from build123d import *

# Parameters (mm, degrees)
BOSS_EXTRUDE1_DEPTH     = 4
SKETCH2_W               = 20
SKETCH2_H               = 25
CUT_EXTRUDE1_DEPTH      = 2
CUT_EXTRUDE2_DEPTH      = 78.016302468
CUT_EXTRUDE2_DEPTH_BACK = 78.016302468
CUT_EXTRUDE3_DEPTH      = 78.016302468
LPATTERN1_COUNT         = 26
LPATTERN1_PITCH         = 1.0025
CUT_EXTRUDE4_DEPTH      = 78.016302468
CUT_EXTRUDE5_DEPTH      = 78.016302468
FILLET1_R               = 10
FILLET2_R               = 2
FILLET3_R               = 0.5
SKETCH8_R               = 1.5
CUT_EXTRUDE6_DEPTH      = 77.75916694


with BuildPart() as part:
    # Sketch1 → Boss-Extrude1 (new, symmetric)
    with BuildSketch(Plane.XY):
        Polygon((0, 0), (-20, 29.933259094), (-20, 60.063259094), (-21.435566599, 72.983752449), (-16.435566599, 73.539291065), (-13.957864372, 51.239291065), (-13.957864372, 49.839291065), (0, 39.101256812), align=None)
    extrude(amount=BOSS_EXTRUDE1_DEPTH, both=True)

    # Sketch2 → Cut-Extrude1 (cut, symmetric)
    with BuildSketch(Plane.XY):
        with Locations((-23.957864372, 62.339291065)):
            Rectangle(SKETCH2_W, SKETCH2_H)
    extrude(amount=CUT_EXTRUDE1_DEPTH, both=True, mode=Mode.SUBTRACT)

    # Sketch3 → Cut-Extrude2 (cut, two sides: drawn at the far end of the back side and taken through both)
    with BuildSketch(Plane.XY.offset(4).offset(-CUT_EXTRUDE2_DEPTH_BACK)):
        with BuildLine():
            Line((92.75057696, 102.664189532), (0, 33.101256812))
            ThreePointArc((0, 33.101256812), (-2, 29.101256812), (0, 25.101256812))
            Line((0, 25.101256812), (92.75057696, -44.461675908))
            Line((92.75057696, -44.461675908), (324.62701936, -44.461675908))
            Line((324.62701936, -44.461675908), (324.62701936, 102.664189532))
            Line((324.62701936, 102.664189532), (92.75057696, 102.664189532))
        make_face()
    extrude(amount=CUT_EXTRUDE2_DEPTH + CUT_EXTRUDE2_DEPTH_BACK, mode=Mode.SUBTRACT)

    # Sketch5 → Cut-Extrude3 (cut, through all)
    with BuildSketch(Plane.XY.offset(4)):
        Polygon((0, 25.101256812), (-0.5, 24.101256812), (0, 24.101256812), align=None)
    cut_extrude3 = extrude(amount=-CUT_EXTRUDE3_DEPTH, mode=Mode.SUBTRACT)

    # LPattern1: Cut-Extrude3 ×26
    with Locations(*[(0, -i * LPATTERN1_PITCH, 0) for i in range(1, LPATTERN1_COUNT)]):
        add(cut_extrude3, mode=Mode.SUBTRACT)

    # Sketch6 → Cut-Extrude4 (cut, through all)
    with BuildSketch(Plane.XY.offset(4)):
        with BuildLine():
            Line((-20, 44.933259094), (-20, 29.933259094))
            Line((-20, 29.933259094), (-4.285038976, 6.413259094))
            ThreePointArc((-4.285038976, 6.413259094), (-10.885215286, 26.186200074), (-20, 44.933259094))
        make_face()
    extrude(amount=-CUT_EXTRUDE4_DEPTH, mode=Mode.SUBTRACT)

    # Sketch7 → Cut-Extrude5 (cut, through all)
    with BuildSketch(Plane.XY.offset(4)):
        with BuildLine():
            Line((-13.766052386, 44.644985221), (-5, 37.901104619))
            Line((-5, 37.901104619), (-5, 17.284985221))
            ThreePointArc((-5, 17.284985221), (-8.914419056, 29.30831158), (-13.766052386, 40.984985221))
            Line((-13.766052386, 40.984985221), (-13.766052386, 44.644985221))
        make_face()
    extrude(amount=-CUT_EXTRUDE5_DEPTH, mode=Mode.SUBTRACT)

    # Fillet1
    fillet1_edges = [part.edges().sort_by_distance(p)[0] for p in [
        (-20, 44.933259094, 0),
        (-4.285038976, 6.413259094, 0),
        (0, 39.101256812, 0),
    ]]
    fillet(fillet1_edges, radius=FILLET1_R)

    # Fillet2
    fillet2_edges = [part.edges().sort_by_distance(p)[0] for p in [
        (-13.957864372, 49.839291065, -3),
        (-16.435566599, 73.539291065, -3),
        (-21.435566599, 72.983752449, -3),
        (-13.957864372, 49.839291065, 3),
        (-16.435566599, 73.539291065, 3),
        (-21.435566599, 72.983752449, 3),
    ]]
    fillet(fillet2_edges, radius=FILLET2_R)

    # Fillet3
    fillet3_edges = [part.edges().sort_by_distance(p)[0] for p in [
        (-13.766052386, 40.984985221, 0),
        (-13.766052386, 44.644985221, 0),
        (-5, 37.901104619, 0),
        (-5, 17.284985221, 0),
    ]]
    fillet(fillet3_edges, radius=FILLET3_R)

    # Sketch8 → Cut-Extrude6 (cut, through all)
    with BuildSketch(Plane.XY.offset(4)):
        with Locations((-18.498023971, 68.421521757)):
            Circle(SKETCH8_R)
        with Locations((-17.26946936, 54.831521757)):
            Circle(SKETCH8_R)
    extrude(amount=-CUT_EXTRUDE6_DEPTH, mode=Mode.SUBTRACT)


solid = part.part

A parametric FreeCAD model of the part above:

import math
import FreeCAD as App
import Part
import Sketcher

V = App.Vector
Q = App.Units.Quantity


def edges_at(feature, points):
    """Names of the edges that pass closest to the given points."""
    edges = feature.Shape.Edges
    near = lambda p: min(range(len(edges)), key=lambda i: edges[i].distToShape(Part.Vertex(*p))[0])
    return sorted({f"Edge{near(p) + 1}" for p in points})


def add_polygon(sketch, points):
    """Adds a closed chain of lines whose ends are joined by coincident constraints."""
    first, n = sketch.GeometryCount, len(points)
    for a, b in zip(points, points[1:] + points[:1]):
        sketch.addGeometry(Part.LineSegment(App.Vector(*a, 0), App.Vector(*b, 0)), False)
    for i in range(n):
        sketch.addConstraint(Sketcher.Constraint("Coincident", first + i, 2, first + (i + 1) % n, 1))

doc = App.newDocument("Part")
params = doc.addObject("Spreadsheet::Sheet", "Params")
for row, (alias, value) in enumerate([
    ("sketch1_length", "36 mm"),
    ("sketch1_length2", "13 mm"),
    ("sketch1_height", "1.4 mm"),
    ("sketch1_height2", "30.13 mm"),
    ("pad1_length", "8 mm"),
    ("sketch2_width", "20 mm"),
    ("sketch2_height", "25 mm"),
    ("pocket1_length", "4 mm"),
    ("sketch3_radius", "5 mm"),
    ("sketch4_height", "1 mm"),
    ("sketch4_width", "0.5 mm"),
    ("linearpattern_pitch", "1.0025 mm"),
    ("sketch5_radius", "160 mm"),
    ("sketch5_height", "15 mm"),
    ("sketch6_radius", "160 mm"),
    ("sketch6_height", "3.66 mm"),
    ("sketch6_length", "11.06 mm"),
    ("fillet_radius", "10 mm"),
    ("fillet2_radius", "2 mm"),
    ("fillet3_radius", "0.5 mm"),
    ("sketch7_diameter", "3 mm"),
], start=1):
    params.set(f"A{row}", alias)
    params.set(f"B{row}", "=" + value)
    params.setAlias(f"B{row}", alias)

body = doc.addObject("PartDesign::Body", "Body")
body.AllowCompound = True

# Sketch on XY plane
sketch1 = body.newObject("Sketcher::SketchObject", "Sketch")
sketch1.AttachmentSupport = (doc.getObject("XY_Plane"), [""])
sketch1.MapMode = "FlatFace"
add_polygon(sketch1, [(-20, 29.9), (0, 0), (0, 39.1), (-14, 49.8), (-14, 51.2), (-16.4, 73.5), (-21.4, 73), (-20, 60.1)])  # lines 0-7
sketch1.addConstraint(Sketcher.Constraint("Vertical", 1))
sketch1.addConstraint(Sketcher.Constraint("Vertical", 3))
sketch1.addConstraint(Sketcher.Constraint("Vertical", 7))
sketch1.addConstraint(Sketcher.Constraint("Coincident", 0, 2, -1, 1))
sketch1.addConstraint(Sketcher.Constraint("Perpendicular", 4, 5))
sketch1.addConstraint(Sketcher.Constraint("Perpendicular", 5, 6))
sketch1.addConstraint(Sketcher.Constraint("Distance", 0, 36.0))
sketch1.addConstraint(Sketcher.Constraint("Distance", 6, 13.0))
sketch1.addConstraint(Sketcher.Constraint("DistanceY", 3, 1, 3, 2, 1.4))
sketch1.addConstraint(Sketcher.Constraint("DistanceX", 6, 2, -1, 1, 20.0))
sketch1.addConstraint(Sketcher.Constraint("DistanceX", 5, 2, 4, 2, 5.0))
sketch1.addConstraint(Sketcher.Constraint("DistanceY", 7, 2, 7, 1, 30.13))
sketch1.addConstraint(Sketcher.Constraint("Angle", 4, Q("96.34 deg")))
sketch1.addConstraint(Sketcher.Constraint("DistanceY", 3, 2, 4, 2, 22.3))
sketch1.addConstraint(Sketcher.Constraint("DistanceY", 1, 1, 1, 2, 39.101257))
sketch1.setExpression("Constraints[14]", "Params.sketch1_length")
sketch1.setExpression("Constraints[15]", "Params.sketch1_length2")
sketch1.setExpression("Constraints[16]", "Params.sketch1_height")
sketch1.setExpression("Constraints[19]", "Params.sketch1_height2")
pad1 = body.newObject("PartDesign::Pad", "Pad")
pad1.Profile = sketch1
pad1.setExpression("Length", "Params.pad1_length")
pad1.Midplane = True

# Sketch on XY plane
sketch2 = body.newObject("Sketcher::SketchObject", "Sketch001")
sketch2.AttachmentSupport = (doc.getObject("XY_Plane"), [""])
sketch2.MapMode = "FlatFace"
add_polygon(sketch2, [(-34, 75), (-34, 50), (-14, 50), (-14, 75)])  # lines 0-3
sketch2.addConstraint(Sketcher.Constraint("Vertical", 0))
sketch2.addConstraint(Sketcher.Constraint("Horizontal", 1))
sketch2.addConstraint(Sketcher.Constraint("Vertical", 2))
sketch2.addConstraint(Sketcher.Constraint("Horizontal", 3))
sketch2.addConstraint(Sketcher.Constraint("DistanceX", 1, 1, 1, 2, 20.0))
sketch2.addConstraint(Sketcher.Constraint("DistanceY", 0, 2, 0, 1, 25.0))
sketch2.addConstraint(Sketcher.Constraint("DistanceY", -1, 1, 0, 2, 49.839291))
sketch2.addConstraint(Sketcher.Constraint("DistanceX", 0, 2, -1, 1, 33.957864))
sketch2.setExpression("Constraints[8]", "Params.sketch2_width")
sketch2.setExpression("Constraints[9]", "Params.sketch2_height")
pocket1 = body.newObject("PartDesign::Pocket", "Pocket")
pocket1.Profile = sketch2
pocket1.setExpression("Length", "Params.pocket1_length")
pocket1.Midplane = True

# Sketch on XY plane
sketch3 = body.newObject("Sketcher::SketchObject", "Sketch002")
sketch3.AttachmentSupport = (doc.getObject("XY_Plane"), [""])
sketch3.MapMode = "FlatFace"
sketch3.AttachmentOffset = App.Placement(V(0, 0, 4), App.Rotation())
sketch3.addGeometry(Part.LineSegment(V(93, 103, 0), V(0, 33, 0)), False)
sketch3.addGeometry(Part.ArcOfCircle(Part.Circle(V(3, 29, 0), V(0, 0, 1), 5), math.radians(127), math.radians(233)), False)
sketch3.addGeometry(Part.LineSegment(V(0, 25, 0), V(93, -44, 0)), False)
sketch3.addGeometry(Part.LineSegment(V(93, -44, 0), V(325, -44, 0)), False)
sketch3.addGeometry(Part.LineSegment(V(325, -44, 0), V(325, 103, 0)), False)
sketch3.addGeometry(Part.LineSegment(V(325, 103, 0), V(93, 103, 0)), False)
sketch3.addConstraint(Sketcher.Constraint("Tangent", 0, 2, 1, 1))
sketch3.addConstraint(Sketcher.Constraint("Tangent", 1, 2, 2, 1))
sketch3.addConstraint(Sketcher.Constraint("Coincident", 2, 2, 3, 1))
sketch3.addConstraint(Sketcher.Constraint("Coincident", 3, 2, 4, 1))
sketch3.addConstraint(Sketcher.Constraint("Coincident", 4, 2, 5, 1))
sketch3.addConstraint(Sketcher.Constraint("Coincident", 5, 2, 0, 1))
sketch3.addConstraint(Sketcher.Constraint("Horizontal", 3))
sketch3.addConstraint(Sketcher.Constraint("Vertical", 4))
sketch3.addConstraint(Sketcher.Constraint("Horizontal", 5))
sketch3.addConstraint(Sketcher.Constraint("PointOnObject", 0, 2, -2))
sketch3.addConstraint(Sketcher.Constraint("PointOnObject", 1, 2, -2))
sketch3.addConstraint(Sketcher.Constraint("Vertical", 2, 2, 5, 2))
sketch3.addConstraint(Sketcher.Constraint("Radius", 1, 5.0))
sketch3.addConstraint(Sketcher.Constraint("DistanceX", -1, 1, 1, 3, 3.0))
sketch3.addConstraint(Sketcher.Constraint("Distance", 0, 115.938221))
sketch3.addConstraint(Sketcher.Constraint("DistanceX", 3, 1, 3, 2, 231.876442))
sketch3.addConstraint(Sketcher.Constraint("DistanceY", -1, 1, 4, 2, 102.66419))
sketch3.setExpression("Constraints[12]", "Params.sketch3_radius")
pocket2 = body.newObject("PartDesign::Pocket", "Pocket001")
pocket2.Profile = sketch3
pocket2.Type = "ThroughAll"
pocket2.Midplane = True

# Sketch on XY plane
sketch4 = body.newObject("Sketcher::SketchObject", "Sketch003")
sketch4.AttachmentSupport = (doc.getObject("XY_Plane"), [""])
sketch4.MapMode = "FlatFace"
sketch4.AttachmentOffset = App.Placement(V(0, 0, 4), App.Rotation())
add_polygon(sketch4, [(0, 25.1), (-0.5, 24.1), (0, 24.1)])  # lines 0-2
sketch4.addConstraint(Sketcher.Constraint("Horizontal", 1))
sketch4.addConstraint(Sketcher.Constraint("Vertical", 2))
sketch4.addConstraint(Sketcher.Constraint("PointOnObject", 1, 2, -2))
sketch4.addConstraint(Sketcher.Constraint("DistanceY", 2, 1, 2, 2, 1.0))
sketch4.addConstraint(Sketcher.Constraint("DistanceX", 1, 1, 1, 2, 0.5))
sketch4.addConstraint(Sketcher.Constraint("DistanceY", -1, 1, 0, 2, 24.101257))
sketch4.setExpression("Constraints[6]", "Params.sketch4_height")
sketch4.setExpression("Constraints[7]", "Params.sketch4_width")
pocket3 = body.newObject("PartDesign::Pocket", "Pocket002")
pocket3.Profile = sketch4
pocket3.Type = "ThroughAll"
doc.recompute()

linearpattern = body.newObject("PartDesign::LinearPattern", "LinearPattern")
linearpattern.Originals = [pocket3]
linearpattern.Direction = (doc.getObject("Y_Axis"), [""])
linearpattern.Mode = "offset"
linearpattern.setExpression("Offset", "Params.linearpattern_pitch")
linearpattern.Occurrences = 26
linearpattern.Reversed = True
body.Tip = linearpattern

# Sketch on XY plane
sketch5 = body.newObject("Sketcher::SketchObject", "Sketch004")
sketch5.AttachmentSupport = (doc.getObject("XY_Plane"), [""])
sketch5.MapMode = "FlatFace"
sketch5.AttachmentOffset = App.Placement(V(0, 0, 4), App.Rotation())
sketch5.addGeometry(Part.LineSegment(V(-20, 45, 0), V(-20, 30, 0)), False)
sketch5.addGeometry(Part.LineSegment(V(-20, 30, 0), V(-4, 6, 0)), False)
sketch5.addGeometry(Part.ArcOfCircle(Part.Circle(V(-159, -34, 0), V(0, 0, 1), 160), math.radians(14.72), math.radians(29.66)), False)
sketch5.addConstraint(Sketcher.Constraint("Coincident", 0, 2, 1, 1))
sketch5.addConstraint(Sketcher.Constraint("Coincident", 1, 2, 2, 1))
sketch5.addConstraint(Sketcher.Constraint("Coincident", 2, 2, 0, 1))
sketch5.addConstraint(Sketcher.Constraint("Vertical", 0))
sketch5.addConstraint(Sketcher.Constraint("Radius", 2, 160.0))
sketch5.addConstraint(Sketcher.Constraint("DistanceY", 0, 2, 0, 1, 15.0))
sketch5.addConstraint(Sketcher.Constraint("DistanceX", 0, 2, -1, 1, 20.0))
sketch5.addConstraint(Sketcher.Constraint("DistanceY", 1, 2, 0, 2, 23.52))
sketch5.addConstraint(Sketcher.Constraint("Distance", 1, 28.28693))
sketch5.addConstraint(Sketcher.Constraint("DistanceY", -1, 1, 0, 2, 29.933259))
sketch5.setExpression("Constraints[4]", "Params.sketch5_radius")
sketch5.setExpression("Constraints[5]", "Params.sketch5_height")
pocket4 = body.newObject("PartDesign::Pocket", "Pocket003")
pocket4.Profile = sketch5
pocket4.Type = "ThroughAll"

# Sketch on XY plane
sketch6 = body.newObject("Sketcher::SketchObject", "Sketch005")
sketch6.AttachmentSupport = (doc.getObject("XY_Plane"), [""])
sketch6.MapMode = "FlatFace"
sketch6.AttachmentOffset = App.Placement(V(0, 0, 4), App.Rotation())
sketch6.addGeometry(Part.LineSegment(V(-5, 37.9, 0), V(-13.8, 44.6, 0)), False)
sketch6.addGeometry(Part.LineSegment(V(-13.8, 44.6, 0), V(-13.8, 41, 0)), False)
sketch6.addGeometry(Part.ArcOfCircle(Part.Circle(V(-159, -26.2, 0), V(0, 0, 1), 160), math.radians(15.77), math.radians(24.83)), False)
sketch6.addGeometry(Part.LineSegment(V(-5, 17.3, 0), V(-5, 37.9, 0)), False)
sketch6.addConstraint(Sketcher.Constraint("Coincident", 0, 2, 1, 1))
sketch6.addConstraint(Sketcher.Constraint("Coincident", 1, 2, 2, 2))
sketch6.addConstraint(Sketcher.Constraint("Coincident", 2, 1, 3, 1))
sketch6.addConstraint(Sketcher.Constraint("Coincident", 3, 2, 0, 1))
sketch6.addConstraint(Sketcher.Constraint("Vertical", 1))
sketch6.addConstraint(Sketcher.Constraint("Vertical", 3))
sketch6.addConstraint(Sketcher.Constraint("Radius", 2, 160.0))
sketch6.addConstraint(Sketcher.Constraint("DistanceX", 2, 1, -1, 1, 5.0))
sketch6.addConstraint(Sketcher.Constraint("DistanceY", 1, 2, 1, 1, 3.66))
sketch6.addConstraint(Sketcher.Constraint("DistanceY", 2, 1, 1, 2, 23.7))
sketch6.addConstraint(Sketcher.Constraint("Distance", 0, 11.06))
sketch6.addConstraint(Sketcher.Constraint("DistanceY", 3, 1, 3, 2, 20.616119))
sketch6.addConstraint(Sketcher.Constraint("DistanceY", 2, 3, -1, 1, 26.196693))
sketch6.setExpression("Constraints[6]", "Params.sketch6_radius")
sketch6.setExpression("Constraints[8]", "Params.sketch6_height")
sketch6.setExpression("Constraints[10]", "Params.sketch6_length")
pocket5 = body.newObject("PartDesign::Pocket", "Pocket004")
pocket5.Profile = sketch6
pocket5.Type = "ThroughAll"
doc.recompute()

fillet = body.newObject("PartDesign::Fillet", "Fillet")
fillet.Base = (pocket5, edges_at(pocket5, [(-20, 44.933, 0), (-4.285, 6.413, 0), (0, 39.101, 0)]))
fillet.setExpression("Radius", "Params.fillet_radius")
doc.recompute()

fillet2 = body.newObject("PartDesign::Fillet", "Fillet001")
fillet2.Base = (fillet, edges_at(fillet, [
    (-13.958, 49.839, -3),
    (-16.436, 73.539, -3),
    (-21.436, 72.984, -3),
    (-13.958, 49.839, 3),
    (-16.436, 73.539, 3),
    (-21.436, 72.984, 3),
]))
fillet2.setExpression("Radius", "Params.fillet2_radius")
doc.recompute()

fillet3 = body.newObject("PartDesign::Fillet", "Fillet002")
fillet3.Base = (fillet2, edges_at(fillet2, [
    (-13.766, 40.985, 0),
    (-13.766, 44.645, 0),
    (-5, 37.901, 0),
    (-5, 17.285, 0),
]))
fillet3.setExpression("Radius", "Params.fillet3_radius")

# Sketch on XY plane
sketch7 = body.newObject("Sketcher::SketchObject", "Sketch006")
sketch7.AttachmentSupport = (doc.getObject("XY_Plane"), [""])
sketch7.MapMode = "FlatFace"
sketch7.AttachmentOffset = App.Placement(V(0, 0, 4), App.Rotation())
sketch7.addGeometry(Part.Circle(V(-18.5, 68.4, 0), V(0, 0, 1), 1.5), False)
sketch7.addGeometry(Part.Circle(V(-17.3, 54.8, 0), V(0, 0, 1), 1.5), False)
sketch7.addConstraint(Sketcher.Constraint("Equal", 0, 1))
sketch7.addConstraint(Sketcher.Constraint("Diameter", 0, 3.0))
sketch7.addConstraint(Sketcher.Constraint("DistanceY", 1, 3, 0, 3, 13.59))
sketch7.addConstraint(Sketcher.Constraint("DistanceY", -1, 1, 0, 3, 68.421522))
sketch7.addConstraint(Sketcher.Constraint("DistanceX", 1, 3, -1, 1, 17.269469))
sketch7.addConstraint(Sketcher.Constraint("DistanceX", 0, 3, -1, 1, 18.498024))
sketch7.setExpression("Constraints[1]", "Params.sketch7_diameter")
pocket6 = body.newObject("PartDesign::Pocket", "Pocket005")
pocket6.Profile = sketch7
pocket6.Type = "ThroughAll"

doc.recompute()
